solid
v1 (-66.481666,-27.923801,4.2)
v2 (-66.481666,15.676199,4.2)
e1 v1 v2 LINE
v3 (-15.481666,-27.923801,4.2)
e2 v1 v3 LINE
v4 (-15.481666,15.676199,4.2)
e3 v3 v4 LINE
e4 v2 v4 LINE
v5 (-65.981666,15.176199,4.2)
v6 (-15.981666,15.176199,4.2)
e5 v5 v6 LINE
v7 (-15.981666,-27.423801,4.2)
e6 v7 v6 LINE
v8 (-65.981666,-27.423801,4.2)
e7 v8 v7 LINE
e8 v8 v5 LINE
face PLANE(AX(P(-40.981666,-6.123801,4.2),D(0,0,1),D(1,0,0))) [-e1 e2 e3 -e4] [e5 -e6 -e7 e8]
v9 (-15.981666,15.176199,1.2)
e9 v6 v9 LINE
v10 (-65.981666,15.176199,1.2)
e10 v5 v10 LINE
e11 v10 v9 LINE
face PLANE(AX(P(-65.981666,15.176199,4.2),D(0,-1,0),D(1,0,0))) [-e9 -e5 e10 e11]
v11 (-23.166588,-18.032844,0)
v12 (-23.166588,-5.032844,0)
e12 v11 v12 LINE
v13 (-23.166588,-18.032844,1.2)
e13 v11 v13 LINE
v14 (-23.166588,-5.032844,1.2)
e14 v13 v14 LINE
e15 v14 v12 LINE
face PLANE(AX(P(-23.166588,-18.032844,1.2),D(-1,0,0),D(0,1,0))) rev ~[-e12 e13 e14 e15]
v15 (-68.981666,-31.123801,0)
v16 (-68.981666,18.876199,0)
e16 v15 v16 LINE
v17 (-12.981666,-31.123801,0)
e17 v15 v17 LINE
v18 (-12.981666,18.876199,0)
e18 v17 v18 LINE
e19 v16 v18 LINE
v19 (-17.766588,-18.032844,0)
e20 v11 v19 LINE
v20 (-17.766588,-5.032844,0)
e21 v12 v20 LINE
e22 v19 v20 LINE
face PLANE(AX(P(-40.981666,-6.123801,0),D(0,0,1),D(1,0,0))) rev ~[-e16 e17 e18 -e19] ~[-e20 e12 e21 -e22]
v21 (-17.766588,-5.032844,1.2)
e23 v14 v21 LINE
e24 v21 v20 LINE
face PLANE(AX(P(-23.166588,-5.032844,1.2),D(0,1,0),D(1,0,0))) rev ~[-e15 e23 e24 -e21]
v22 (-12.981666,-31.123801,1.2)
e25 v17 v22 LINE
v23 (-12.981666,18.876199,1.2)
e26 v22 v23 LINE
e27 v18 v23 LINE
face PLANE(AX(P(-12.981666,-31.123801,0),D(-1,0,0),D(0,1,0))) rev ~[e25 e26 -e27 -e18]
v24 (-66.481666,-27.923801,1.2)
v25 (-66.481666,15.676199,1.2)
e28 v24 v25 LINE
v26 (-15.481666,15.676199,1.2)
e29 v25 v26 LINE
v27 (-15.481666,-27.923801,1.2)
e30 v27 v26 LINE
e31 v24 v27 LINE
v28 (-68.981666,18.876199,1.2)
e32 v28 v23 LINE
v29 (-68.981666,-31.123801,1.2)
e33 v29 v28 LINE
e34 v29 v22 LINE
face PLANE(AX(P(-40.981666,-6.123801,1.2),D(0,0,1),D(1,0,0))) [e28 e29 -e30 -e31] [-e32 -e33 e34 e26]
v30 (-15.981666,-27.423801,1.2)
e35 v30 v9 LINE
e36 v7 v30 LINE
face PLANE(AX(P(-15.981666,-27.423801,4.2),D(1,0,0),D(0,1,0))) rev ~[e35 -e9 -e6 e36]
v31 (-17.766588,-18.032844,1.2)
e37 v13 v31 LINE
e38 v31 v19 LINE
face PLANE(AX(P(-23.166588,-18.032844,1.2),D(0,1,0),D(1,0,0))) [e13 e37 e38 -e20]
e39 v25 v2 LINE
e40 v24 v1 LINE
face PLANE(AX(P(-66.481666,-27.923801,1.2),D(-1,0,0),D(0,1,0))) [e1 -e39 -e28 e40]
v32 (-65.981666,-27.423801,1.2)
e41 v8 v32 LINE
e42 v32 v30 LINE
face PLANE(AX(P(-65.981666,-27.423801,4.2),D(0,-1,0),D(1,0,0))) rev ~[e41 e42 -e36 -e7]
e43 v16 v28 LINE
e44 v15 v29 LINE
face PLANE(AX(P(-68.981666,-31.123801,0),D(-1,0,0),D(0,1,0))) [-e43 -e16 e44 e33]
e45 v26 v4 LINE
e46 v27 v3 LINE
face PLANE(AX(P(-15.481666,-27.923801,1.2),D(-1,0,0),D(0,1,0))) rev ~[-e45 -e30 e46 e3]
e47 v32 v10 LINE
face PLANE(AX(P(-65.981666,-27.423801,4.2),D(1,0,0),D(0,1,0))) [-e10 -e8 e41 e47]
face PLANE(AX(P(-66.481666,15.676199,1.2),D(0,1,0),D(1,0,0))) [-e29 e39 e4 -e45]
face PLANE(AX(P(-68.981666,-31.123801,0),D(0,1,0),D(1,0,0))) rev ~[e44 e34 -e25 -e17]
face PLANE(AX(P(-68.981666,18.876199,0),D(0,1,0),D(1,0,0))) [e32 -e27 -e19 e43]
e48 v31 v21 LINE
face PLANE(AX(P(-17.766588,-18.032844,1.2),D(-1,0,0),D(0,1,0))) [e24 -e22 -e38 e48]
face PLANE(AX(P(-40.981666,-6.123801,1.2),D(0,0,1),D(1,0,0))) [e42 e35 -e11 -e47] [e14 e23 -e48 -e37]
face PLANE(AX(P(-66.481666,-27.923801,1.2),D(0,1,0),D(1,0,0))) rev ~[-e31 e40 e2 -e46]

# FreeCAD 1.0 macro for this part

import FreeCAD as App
import Part
import Sketcher

doc = App.newDocument("Part")
body = doc.addObject("PartDesign::Body", "Body")

# Sketch on XY plane
sketch1 = body.newObject("Sketcher::SketchObject", "Sketch")
sketch1.AttachmentSupport = (doc.getObject("XY_Plane"), [""])
sketch1.MapMode = "FlatFace"
sketch1.addGeometry([
    Part.LineSegment(App.Vector(-68.981666, 18.876199, 0), App.Vector(-68.981666, -31.123801, 0)),
    Part.LineSegment(App.Vector(-68.981666, -31.123801, 0), App.Vector(-12.981666, -31.123801, 0)),
    Part.LineSegment(App.Vector(-12.981666, -31.123801, 0), App.Vector(-12.981666, 18.876199, 0)),
    Part.LineSegment(App.Vector(-12.981666, 18.876199, 0), App.Vector(-68.981666, 18.876199, 0)),
], False)
sketch1.addConstraint([
    Sketcher.Constraint("Coincident", 0, 2, 1, 1),
    Sketcher.Constraint("Coincident", 1, 2, 2, 1),
    Sketcher.Constraint("Coincident", 2, 2, 3, 1),
    Sketcher.Constraint("Coincident", 3, 2, 0, 1),
    Sketcher.Constraint("Vertical", 0),
    Sketcher.Constraint("Horizontal", 1),
    Sketcher.Constraint("Vertical", 2),
    Sketcher.Constraint("Horizontal", 3),
    Sketcher.Constraint("DistanceX", 1, 1, 1, 2, 56.0),
    Sketcher.Constraint("DistanceY", 0, 2, 0, 1, 50.0),
    Sketcher.Constraint("DistanceY", 0, 2, -1, 1, 31.123801),
    Sketcher.Constraint("DistanceX", 0, 2, -1, 1, 68.981666),
])
pad1 = body.newObject("PartDesign::Pad", "Pad")
pad1.Profile = sketch1
pad1.Length = 1.2

# Sketch on XY plane
sketch2 = body.newObject("Sketcher::SketchObject", "Sketch001")
sketch2.AttachmentSupport = (doc.getObject("XY_Plane"), [""])
sketch2.MapMode = "FlatFace"
sketch2.AttachmentOffset = App.Placement(App.Vector(0, 0, 1.2), App.Rotation())
sketch2.addGeometry([
    Part.LineSegment(App.Vector(-23.166588, -5.032844, 0), App.Vector(-23.166588, -18.032844, 0)),
    Part.LineSegment(App.Vector(-23.166588, -18.032844, 0), App.Vector(-17.766588, -18.032844, 0)),
    Part.LineSegment(App.Vector(-17.766588, -18.032844, 0), App.Vector(-17.766588, -5.032844, 0)),
    Part.LineSegment(App.Vector(-17.766588, -5.032844, 0), App.Vector(-23.166588, -5.032844, 0)),
], False)
sketch2.addConstraint([
    Sketcher.Constraint("Coincident", 0, 2, 1, 1),
    Sketcher.Constraint("Coincident", 1, 2, 2, 1),
    Sketcher.Constraint("Coincident", 2, 2, 3, 1),
    Sketcher.Constraint("Coincident", 3, 2, 0, 1),
    Sketcher.Constraint("Vertical", 0),
    Sketcher.Constraint("Horizontal", 1),
    Sketcher.Constraint("Vertical", 2),
    Sketcher.Constraint("Horizontal", 3),
    Sketcher.Constraint("DistanceY", 0, 2, 0, 1, 13.0),
    Sketcher.Constraint("DistanceX", 1, 1, 1, 2, 5.4),
    Sketcher.Constraint("DistanceX", 0, 2, -1, 1, 23.166588),
    Sketcher.Constraint("DistanceY", 0, 2, -1, 1, 18.032844),
])
pocket1 = body.newObject("PartDesign::Pocket", "Pocket")
pocket1.Profile = sketch2
pocket1.Length = 1.2

# Sketch on XY plane
sketch3 = body.newObject("Sketcher::SketchObject", "Sketch002")
sketch3.AttachmentSupport = (doc.getObject("XY_Plane"), [""])
sketch3.MapMode = "FlatFace"
sketch3.AttachmentOffset = App.Placement(App.Vector(0, 0, 1.2), App.Rotation())
sketch3.addGeometry([
    Part.LineSegment(App.Vector(-66.481666, 15.676199, 0), App.Vector(-66.481666, -27.923801, 0)),  # 0
    Part.LineSegment(App.Vector(-66.481666, -27.923801, 0), App.Vector(-15.481666, -27.923801, 0)),  # 1
    Part.LineSegment(App.Vector(-15.481666, -27.923801, 0), App.Vector(-15.481666, 15.676199, 0)),  # 2
    Part.LineSegment(App.Vector(-15.481666, 15.676199, 0), App.Vector(-66.481666, 15.676199, 0)),  # 3
    Part.LineSegment(App.Vector(-17.766588, -18.032844, 0), App.Vector(-23.166588, -18.032844, 0)),  # 4
    Part.LineSegment(App.Vector(-23.166588, -18.032844, 0), App.Vector(-23.166588, -5.032844, 0)),  # 5
    Part.LineSegment(App.Vector(-23.166588, -5.032844, 0), App.Vector(-17.766588, -5.032844, 0)),  # 6
    Part.LineSegment(App.Vector(-17.766588, -5.032844, 0), App.Vector(-17.766588, -18.032844, 0)),  # 7
], False)
sketch3.addConstraint([
    Sketcher.Constraint("Coincident", 0, 2, 1, 1),
    Sketcher.Constraint("Coincident", 1, 2, 2, 1),
    Sketcher.Constraint("Coincident", 2, 2, 3, 1),
    Sketcher.Constraint("Coincident", 3, 2, 0, 1),
    Sketcher.Constraint("Coincident", 4, 2, 5, 1),
    Sketcher.Constraint("Coincident", 5, 2, 6, 1),
    Sketcher.Constraint("Coincident", 6, 2, 7, 1),
    Sketcher.Constraint("Coincident", 7, 2, 4, 1),
    Sketcher.Constraint("Vertical", 0),
    Sketcher.Constraint("Horizontal", 1),
    Sketcher.Constraint("Vertical", 2),
    Sketcher.Constraint("Horizontal", 3),
    Sketcher.Constraint("Horizontal", 4),
    Sketcher.Constraint("Vertical", 5),
    Sketcher.Constraint("Horizontal", 6),
    Sketcher.Constraint("Vertical", 7),
    Sketcher.Constraint("DistanceX", 1, 1, 1, 2, 51.0),
    Sketcher.Constraint("DistanceY", 5, 1, 5, 2, 13.0),
    Sketcher.Constraint("DistanceX", 4, 2, 4, 1, 5.4),
    Sketcher.Constraint("DistanceY", 0, 2, 0, 1, 43.6),
    Sketcher.Constraint("DistanceY", 0, 2, -1, 1, 27.923801),
    Sketcher.Constraint("DistanceX", 4, 2, -1, 1, 23.166588),
    Sketcher.Constraint("DistanceX", 6, 2, 2, 2, 2.284922),
    Sketcher.Constraint("DistanceY", 4, 2, -1, 1, 18.032844),
])
pad2 = body.newObject("PartDesign::Pad", "Pad001")
pad2.Profile = sketch3
pad2.Length = 3

# Sketch on XY plane
sketch4 = body.newObject("Sketcher::SketchObject", "Sketch003")
sketch4.AttachmentSupport = (doc.getObject("XY_Plane"), [""])
sketch4.MapMode = "FlatFace"
sketch4.AttachmentOffset = App.Placement(App.Vector(0, 0, 4.2), App.Rotation())
sketch4.addGeometry([
    Part.LineSegment(App.Vector(-65.981666, 15.176199, 0), App.Vector(-65.981666, -27.423801, 0)),
    Part.LineSegment(App.Vector(-65.981666, -27.423801, 0), App.Vector(-15.981666, -27.423801, 0)),
    Part.LineSegment(App.Vector(-15.981666, -27.423801, 0), App.Vector(-15.981666, 15.176199, 0)),
    Part.LineSegment(App.Vector(-15.981666, 15.176199, 0), App.Vector(-65.981666, 15.176199, 0)),
], False)
sketch4.addConstraint([
    Sketcher.Constraint("Coincident", 0, 2, 1, 1),
    Sketcher.Constraint("Coincident", 1, 2, 2, 1),
    Sketcher.Constraint("Coincident", 2, 2, 3, 1),
    Sketcher.Constraint("Coincident", 3, 2, 0, 1),
    Sketcher.Constraint("Vertical", 0),
    Sketcher.Constraint("Horizontal", 1),
    Sketcher.Constraint("Vertical", 2),
    Sketcher.Constraint("Horizontal", 3),
    Sketcher.Constraint("DistanceX", 1, 1, 1, 2, 50.0),
    Sketcher.Constraint("DistanceY", 0, 2, 0, 1, 42.6),
    Sketcher.Constraint("DistanceY", 0, 2, -1, 1, 27.423801),
    Sketcher.Constraint("DistanceX", 0, 2, -1, 1, 65.981666),
])
pocket2 = body.newObject("PartDesign::Pocket", "Pocket001")
pocket2.Profile = sketch4
pocket2.Length = 3

doc.recompute()
